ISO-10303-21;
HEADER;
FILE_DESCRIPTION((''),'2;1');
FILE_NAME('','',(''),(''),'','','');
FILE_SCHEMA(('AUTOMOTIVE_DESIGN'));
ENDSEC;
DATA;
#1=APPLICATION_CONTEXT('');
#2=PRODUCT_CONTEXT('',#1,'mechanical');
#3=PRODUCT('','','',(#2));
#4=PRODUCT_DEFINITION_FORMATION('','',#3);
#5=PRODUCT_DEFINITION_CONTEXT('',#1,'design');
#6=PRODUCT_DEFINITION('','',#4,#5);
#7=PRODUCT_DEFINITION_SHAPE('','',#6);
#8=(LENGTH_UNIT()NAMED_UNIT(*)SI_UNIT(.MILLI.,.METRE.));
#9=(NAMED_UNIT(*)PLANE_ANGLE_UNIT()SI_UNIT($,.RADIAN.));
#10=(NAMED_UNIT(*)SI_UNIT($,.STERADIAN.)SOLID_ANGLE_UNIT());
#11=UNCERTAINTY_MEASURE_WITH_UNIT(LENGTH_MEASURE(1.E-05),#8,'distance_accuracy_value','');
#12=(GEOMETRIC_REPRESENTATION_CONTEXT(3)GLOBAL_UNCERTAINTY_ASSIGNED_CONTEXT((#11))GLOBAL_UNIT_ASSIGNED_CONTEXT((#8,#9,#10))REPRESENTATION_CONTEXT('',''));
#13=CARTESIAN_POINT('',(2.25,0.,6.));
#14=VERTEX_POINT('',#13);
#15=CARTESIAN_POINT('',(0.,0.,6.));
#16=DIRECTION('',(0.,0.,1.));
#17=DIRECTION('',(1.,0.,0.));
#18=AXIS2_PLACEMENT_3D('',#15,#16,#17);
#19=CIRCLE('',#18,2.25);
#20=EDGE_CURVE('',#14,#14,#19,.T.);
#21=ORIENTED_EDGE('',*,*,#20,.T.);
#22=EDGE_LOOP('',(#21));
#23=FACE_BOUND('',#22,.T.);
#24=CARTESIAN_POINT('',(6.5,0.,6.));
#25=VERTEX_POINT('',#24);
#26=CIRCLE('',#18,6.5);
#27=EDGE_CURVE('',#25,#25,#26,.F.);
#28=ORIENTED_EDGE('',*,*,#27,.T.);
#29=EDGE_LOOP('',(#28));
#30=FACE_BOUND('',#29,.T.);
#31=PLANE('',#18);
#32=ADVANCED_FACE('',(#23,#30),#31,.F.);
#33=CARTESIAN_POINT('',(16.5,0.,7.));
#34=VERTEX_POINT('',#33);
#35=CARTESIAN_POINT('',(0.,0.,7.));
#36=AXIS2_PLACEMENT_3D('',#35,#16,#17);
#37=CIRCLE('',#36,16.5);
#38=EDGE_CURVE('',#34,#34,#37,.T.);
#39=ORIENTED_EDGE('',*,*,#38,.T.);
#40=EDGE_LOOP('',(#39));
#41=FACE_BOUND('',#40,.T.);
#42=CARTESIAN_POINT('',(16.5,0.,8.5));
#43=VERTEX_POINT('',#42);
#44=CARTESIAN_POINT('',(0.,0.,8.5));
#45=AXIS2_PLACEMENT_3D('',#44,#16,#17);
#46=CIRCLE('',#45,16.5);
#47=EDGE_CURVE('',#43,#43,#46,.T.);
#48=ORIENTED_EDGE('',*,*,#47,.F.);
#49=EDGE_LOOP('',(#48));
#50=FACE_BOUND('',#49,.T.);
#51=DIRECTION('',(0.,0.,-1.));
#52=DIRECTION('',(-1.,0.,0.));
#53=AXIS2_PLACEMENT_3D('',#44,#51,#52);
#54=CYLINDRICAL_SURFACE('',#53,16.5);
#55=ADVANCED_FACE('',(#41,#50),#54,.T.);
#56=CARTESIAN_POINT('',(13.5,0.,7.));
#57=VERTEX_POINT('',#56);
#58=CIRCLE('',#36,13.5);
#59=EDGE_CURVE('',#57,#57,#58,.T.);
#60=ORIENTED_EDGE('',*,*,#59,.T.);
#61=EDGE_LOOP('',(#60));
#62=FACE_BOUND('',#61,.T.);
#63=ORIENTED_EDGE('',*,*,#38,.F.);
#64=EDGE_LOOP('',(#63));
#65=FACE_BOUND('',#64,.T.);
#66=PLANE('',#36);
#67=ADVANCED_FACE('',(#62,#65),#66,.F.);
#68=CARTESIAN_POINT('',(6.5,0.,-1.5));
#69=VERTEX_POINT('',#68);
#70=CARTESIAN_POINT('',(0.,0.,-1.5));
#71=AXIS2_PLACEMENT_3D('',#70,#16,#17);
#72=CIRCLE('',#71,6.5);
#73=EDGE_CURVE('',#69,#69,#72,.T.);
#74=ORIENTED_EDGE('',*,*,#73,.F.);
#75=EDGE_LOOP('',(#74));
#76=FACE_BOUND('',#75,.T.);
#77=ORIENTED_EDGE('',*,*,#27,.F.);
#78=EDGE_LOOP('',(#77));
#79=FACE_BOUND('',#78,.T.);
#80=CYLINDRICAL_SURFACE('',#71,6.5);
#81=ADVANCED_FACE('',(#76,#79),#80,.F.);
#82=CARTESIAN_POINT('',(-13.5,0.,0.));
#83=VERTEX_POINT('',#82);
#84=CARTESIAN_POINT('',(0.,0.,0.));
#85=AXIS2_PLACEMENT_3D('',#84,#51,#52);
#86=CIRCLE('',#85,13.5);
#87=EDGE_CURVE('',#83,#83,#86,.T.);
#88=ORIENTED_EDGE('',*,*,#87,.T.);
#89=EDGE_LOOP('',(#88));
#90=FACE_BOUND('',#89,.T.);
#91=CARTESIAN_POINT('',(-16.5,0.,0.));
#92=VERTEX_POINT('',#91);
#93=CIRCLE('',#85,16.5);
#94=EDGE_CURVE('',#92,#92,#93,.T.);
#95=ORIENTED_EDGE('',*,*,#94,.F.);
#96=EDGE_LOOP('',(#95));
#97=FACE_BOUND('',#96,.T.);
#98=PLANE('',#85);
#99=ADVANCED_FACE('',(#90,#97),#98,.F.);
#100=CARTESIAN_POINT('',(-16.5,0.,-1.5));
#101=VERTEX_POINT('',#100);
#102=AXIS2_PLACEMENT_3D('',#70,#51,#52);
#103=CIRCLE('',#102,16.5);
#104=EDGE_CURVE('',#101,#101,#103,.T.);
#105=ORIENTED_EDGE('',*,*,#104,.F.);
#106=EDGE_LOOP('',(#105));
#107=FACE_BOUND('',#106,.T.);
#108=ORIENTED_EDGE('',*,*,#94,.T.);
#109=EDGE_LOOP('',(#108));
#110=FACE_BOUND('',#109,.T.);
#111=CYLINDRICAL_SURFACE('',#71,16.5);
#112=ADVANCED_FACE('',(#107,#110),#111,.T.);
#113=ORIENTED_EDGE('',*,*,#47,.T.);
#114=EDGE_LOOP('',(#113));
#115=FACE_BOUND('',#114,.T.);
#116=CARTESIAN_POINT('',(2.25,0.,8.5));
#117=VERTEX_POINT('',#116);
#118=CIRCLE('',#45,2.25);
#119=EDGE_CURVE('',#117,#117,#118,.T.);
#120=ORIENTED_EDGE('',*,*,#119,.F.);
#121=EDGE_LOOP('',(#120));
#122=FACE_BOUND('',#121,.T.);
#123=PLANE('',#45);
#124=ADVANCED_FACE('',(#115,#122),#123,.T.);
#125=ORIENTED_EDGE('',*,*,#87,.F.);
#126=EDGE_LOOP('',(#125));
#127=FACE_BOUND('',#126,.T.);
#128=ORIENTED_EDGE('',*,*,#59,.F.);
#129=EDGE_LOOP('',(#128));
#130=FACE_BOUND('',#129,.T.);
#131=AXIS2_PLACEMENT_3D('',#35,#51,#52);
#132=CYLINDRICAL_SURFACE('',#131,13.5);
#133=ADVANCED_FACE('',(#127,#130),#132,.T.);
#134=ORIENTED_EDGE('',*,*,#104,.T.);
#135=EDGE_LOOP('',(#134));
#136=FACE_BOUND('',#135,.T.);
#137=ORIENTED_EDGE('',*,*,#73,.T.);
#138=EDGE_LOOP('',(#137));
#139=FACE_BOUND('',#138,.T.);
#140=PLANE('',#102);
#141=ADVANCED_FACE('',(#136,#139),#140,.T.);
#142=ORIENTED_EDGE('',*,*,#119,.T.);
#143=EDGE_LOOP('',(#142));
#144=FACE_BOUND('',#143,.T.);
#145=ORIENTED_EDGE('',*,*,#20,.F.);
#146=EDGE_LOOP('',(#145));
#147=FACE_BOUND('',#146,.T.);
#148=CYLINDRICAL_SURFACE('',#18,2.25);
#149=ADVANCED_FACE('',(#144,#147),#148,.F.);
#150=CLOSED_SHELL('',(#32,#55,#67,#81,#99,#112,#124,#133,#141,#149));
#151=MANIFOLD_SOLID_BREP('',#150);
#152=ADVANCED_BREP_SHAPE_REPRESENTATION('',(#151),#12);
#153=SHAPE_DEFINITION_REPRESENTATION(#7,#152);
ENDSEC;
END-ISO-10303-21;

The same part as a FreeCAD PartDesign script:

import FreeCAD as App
import Part
import Sketcher
from FreeCAD import Vector

doc = App.newDocument("Part")
body = doc.addObject("PartDesign::Body", "Body")

# Sketch on XY plane
sketch1 = body.newObject("Sketcher::SketchObject", "Sketch")
sketch1.AttachmentSupport = (doc.getObject("XY_Plane"), [""])
sketch1.MapMode = "FlatFace"
sketch1.addGeometry(Part.Circle(Vector(0, 0, 0), Vector(0, 0, 1), 14), False)
sketch1.addConstraint(Sketcher.Constraint("Coincident", 0, 3, -1, 1))
sketch1.addConstraint(Sketcher.Constraint("Diameter", 0, 27.0))
pad1 = body.newObject("PartDesign::Pad", "Pad")
pad1.Profile = sketch1
pad1.Length = 7

# Sketch on XY plane
sketch2 = body.newObject("Sketcher::SketchObject", "Sketch001")
sketch2.AttachmentSupport = (doc.getObject("XY_Plane"), [""])
sketch2.MapMode = "FlatFace"
sketch2.AttachmentOffset = App.Placement(Vector(0, 0, 7), App.Rotation())
sketch2.addGeometry(Part.Circle(Vector(0, 0, 0), Vector(0, 0, 1), 16), False)
sketch2.addConstraint(Sketcher.Constraint("Coincident", 0, 3, -1, 1))
sketch2.addConstraint(Sketcher.Constraint("Diameter", 0, 33.0))
pad2 = body.newObject("PartDesign::Pad", "Pad001")
pad2.Profile = sketch2
pad2.Length = 1.5

# Sketch on XY plane
sketch3 = body.newObject("Sketcher::SketchObject", "Sketch002")
sketch3.AttachmentSupport = (doc.getObject("XY_Plane"), [""])
sketch3.MapMode = "FlatFace"
sketch3.AttachmentOffset = App.Placement(Vector(0, 0, -1.5), App.Rotation())
sketch3.addGeometry(Part.Circle(Vector(0, 0, 0), Vector(0, 0, 1), 16), False)
sketch3.addConstraint(Sketcher.Constraint("Coincident", 0, 3, -1, 1))
sketch3.addConstraint(Sketcher.Constraint("Diameter", 0, 33.0))
pad3 = body.newObject("PartDesign::Pad", "Pad002")
pad3.Profile = sketch3
pad3.Length = 1.5

# Sketch on XY plane
sketch4 = body.newObject("Sketcher::SketchObject", "Sketch003")
sketch4.AttachmentSupport = (doc.getObject("XY_Plane"), [""])
sketch4.MapMode = "FlatFace"
sketch4.AttachmentOffset = App.Placement(Vector(0, 0, 8.5), App.Rotation())
sketch4.addGeometry(Part.Circle(Vector(0, 0, 0), Vector(0, 0, 1), 6), False)
sketch4.addConstraint(Sketcher.Constraint("Coincident", 0, 3, -1, 1))
sketch4.addConstraint(Sketcher.Constraint("Diameter", 0, 13.0))
pocket1 = body.newObject("PartDesign::Pocket", "Pocket")
pocket1.Profile = sketch4
pocket1.Type = "ThroughAll"

# Sketch on XY plane
sketch5 = body.newObject("Sketcher::SketchObject", "Sketch004")
sketch5.AttachmentSupport = (doc.getObject("XY_Plane"), [""])
sketch5.MapMode = "FlatFace"
sketch5.AttachmentOffset = App.Placement(Vector(0, 0, 8.5), App.Rotation())
sketch5.addGeometry(Part.Circle(Vector(0, 0, 0), Vector(0, 0, 1), 6.5), False)
sketch5.addGeometry(Part.Circle(Vector(0, 0, 0), Vector(0, 0, 1), 2.2), False)
sketch5.addConstraint(Sketcher.Constraint("Coincident", 0, 3, -1, 1))
sketch5.addConstraint(Sketcher.Constraint("Coincident", 1, 3, -1, 1))
sketch5.addConstraint(Sketcher.Constraint("Diameter", 0, 13.0))
sketch5.addConstraint(Sketcher.Constraint("Diameter", 1, 4.5))
pad4 = body.newObject("PartDesign::Pad", "Pad003")
pad4.Profile = sketch5
pad4.Length = 2.5
pad4.Reversed = True

doc.recompute()
